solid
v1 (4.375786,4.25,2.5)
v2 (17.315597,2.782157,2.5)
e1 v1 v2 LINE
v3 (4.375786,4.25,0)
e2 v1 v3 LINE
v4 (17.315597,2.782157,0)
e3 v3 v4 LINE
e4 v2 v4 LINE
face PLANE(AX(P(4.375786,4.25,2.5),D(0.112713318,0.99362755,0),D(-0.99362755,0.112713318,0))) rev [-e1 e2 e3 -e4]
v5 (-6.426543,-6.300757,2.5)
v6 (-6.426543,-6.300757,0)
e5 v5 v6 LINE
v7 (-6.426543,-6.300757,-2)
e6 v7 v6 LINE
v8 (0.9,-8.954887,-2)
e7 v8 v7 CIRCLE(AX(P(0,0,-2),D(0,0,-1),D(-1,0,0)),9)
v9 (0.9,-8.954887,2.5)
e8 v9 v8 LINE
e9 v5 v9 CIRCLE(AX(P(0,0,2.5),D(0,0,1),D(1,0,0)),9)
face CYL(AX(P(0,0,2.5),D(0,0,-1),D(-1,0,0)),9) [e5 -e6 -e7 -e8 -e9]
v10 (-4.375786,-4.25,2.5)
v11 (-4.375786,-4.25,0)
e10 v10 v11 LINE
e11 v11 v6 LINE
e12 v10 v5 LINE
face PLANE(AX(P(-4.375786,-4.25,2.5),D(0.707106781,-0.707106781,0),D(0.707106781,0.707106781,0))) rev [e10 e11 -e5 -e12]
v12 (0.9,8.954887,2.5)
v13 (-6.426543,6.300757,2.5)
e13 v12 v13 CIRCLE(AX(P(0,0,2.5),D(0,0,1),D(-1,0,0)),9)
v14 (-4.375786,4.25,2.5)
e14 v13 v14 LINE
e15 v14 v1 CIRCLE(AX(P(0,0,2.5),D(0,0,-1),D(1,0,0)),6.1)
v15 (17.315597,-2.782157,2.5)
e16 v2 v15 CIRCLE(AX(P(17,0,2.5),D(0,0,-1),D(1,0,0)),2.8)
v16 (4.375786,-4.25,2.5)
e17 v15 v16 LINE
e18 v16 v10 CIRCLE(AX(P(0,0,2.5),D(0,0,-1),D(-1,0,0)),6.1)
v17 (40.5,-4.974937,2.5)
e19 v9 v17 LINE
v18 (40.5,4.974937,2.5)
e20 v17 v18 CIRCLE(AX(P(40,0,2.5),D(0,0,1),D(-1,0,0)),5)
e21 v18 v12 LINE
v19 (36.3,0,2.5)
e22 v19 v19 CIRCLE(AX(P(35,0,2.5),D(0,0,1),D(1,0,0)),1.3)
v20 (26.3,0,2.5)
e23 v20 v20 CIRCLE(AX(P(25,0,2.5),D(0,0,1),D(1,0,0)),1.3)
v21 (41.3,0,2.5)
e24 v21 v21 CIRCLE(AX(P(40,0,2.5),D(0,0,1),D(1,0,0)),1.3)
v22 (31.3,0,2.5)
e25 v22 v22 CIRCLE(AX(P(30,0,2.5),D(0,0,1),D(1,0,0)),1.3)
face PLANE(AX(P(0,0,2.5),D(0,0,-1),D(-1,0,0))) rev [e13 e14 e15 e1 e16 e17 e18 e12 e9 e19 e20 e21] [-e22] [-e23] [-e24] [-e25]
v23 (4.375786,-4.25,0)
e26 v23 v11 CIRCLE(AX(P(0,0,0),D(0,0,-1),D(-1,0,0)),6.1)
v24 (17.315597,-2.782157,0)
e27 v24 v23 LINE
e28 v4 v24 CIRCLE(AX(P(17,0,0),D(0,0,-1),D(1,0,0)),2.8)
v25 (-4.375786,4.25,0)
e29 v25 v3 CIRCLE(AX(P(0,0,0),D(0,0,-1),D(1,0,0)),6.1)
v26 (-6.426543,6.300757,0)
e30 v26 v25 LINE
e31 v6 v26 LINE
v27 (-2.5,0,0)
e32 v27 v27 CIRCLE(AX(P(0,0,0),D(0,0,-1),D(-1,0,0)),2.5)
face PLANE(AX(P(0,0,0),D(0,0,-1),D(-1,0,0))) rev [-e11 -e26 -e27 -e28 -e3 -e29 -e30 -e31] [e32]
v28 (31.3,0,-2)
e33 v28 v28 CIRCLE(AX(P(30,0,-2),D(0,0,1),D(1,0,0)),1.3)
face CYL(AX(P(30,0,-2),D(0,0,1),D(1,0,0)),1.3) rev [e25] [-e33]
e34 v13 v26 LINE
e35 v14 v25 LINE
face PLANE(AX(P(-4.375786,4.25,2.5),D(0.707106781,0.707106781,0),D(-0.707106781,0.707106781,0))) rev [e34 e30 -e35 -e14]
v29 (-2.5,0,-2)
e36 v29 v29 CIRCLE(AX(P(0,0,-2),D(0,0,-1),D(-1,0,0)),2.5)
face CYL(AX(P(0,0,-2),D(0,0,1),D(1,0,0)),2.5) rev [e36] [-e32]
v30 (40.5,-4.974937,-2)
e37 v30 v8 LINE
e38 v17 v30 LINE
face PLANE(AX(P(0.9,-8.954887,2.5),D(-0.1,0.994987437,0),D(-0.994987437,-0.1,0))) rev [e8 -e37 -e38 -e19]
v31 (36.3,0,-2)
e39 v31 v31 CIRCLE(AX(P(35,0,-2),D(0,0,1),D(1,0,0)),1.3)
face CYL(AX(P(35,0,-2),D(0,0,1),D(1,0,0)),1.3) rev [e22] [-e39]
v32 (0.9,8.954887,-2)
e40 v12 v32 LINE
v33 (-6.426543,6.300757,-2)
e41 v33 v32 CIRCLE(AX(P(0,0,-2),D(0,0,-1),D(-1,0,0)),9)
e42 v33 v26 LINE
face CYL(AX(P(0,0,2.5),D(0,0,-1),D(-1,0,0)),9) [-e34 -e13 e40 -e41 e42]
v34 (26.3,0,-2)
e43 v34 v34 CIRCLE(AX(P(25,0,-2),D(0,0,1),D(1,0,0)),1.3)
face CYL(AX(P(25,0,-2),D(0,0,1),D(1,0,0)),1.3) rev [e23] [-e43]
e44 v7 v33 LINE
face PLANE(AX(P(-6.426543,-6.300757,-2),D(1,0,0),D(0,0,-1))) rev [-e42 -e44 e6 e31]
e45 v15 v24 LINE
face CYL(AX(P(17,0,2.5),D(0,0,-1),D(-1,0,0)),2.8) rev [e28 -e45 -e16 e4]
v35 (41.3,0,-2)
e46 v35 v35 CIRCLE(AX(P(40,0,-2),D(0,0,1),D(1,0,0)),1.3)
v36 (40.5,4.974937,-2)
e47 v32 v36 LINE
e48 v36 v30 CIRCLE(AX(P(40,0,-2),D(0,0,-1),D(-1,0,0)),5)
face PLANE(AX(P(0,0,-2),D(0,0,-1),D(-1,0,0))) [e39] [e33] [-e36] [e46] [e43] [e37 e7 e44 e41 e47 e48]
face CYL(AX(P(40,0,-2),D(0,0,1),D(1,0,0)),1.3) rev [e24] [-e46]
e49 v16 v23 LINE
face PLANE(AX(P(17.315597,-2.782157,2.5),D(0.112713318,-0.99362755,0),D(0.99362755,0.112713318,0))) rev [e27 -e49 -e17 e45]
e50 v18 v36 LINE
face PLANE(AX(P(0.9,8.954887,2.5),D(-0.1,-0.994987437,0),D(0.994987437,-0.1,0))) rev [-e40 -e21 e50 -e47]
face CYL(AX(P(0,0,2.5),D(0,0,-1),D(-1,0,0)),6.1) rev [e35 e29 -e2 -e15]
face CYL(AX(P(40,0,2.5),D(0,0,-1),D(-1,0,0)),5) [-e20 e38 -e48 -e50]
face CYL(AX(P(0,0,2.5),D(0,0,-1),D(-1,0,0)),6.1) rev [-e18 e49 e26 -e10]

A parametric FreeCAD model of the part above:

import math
import FreeCAD as App
import Part
import Sketcher

V = App.Vector

doc = App.newDocument("Part")
body = doc.addObject("PartDesign::Body", "Body")

# Sketch on XY plane
sketch1 = body.newObject("Sketcher::SketchObject", "Sketch")
sketch1.AttachmentSupport = (doc.getObject("XY_Plane"), [""])
sketch1.MapMode = "FlatFace"
sketch1.addGeometry(Part.LineSegment(V(-6.4, 6.3, 0), V(-4.4, 4.2, 0)), False)
sketch1.addGeometry(Part.ArcOfCircle(Part.Circle(V(0, 0, 0), V(0, 0, 1), 6.1), math.radians(44), math.radians(136)), False)
sketch1.addGeometry(Part.LineSegment(V(4.4, 4.2, 0), V(17.3, 2.8, 0)), False)
sketch1.addGeometry(Part.ArcOfCircle(Part.Circle(V(17, 0, 0), V(0, 0, 1), 2.8), math.radians(-84), math.radians(84)), False)
sketch1.addGeometry(Part.LineSegment(V(17.3, -2.8, 0), V(4.4, -4.2, 0)), False)
sketch1.addGeometry(Part.ArcOfCircle(Part.Circle(V(0, 0, 0), V(0, 0, 1), 6.1), math.radians(-136), math.radians(-44)), False)
sketch1.addGeometry(Part.LineSegment(V(-4.4, -4.2, 0), V(-6.4, -6.3, 0)), False)
sketch1.addGeometry(Part.ArcOfCircle(Part.Circle(V(0, 0, 0), V(0, 0, 1), 9), math.radians(-136), math.radians(-84)), False)
sketch1.addGeometry(Part.LineSegment(V(0.9, -9, 0), V(40.5, -5, 0)), False)
sketch1.addGeometry(Part.ArcOfCircle(Part.Circle(V(40, 0, 0), V(0, 0, 1), 5), math.radians(-84), math.radians(84)), False)
sketch1.addGeometry(Part.LineSegment(V(40.5, 5, 0), V(0.9, 9, 0)), False)
sketch1.addGeometry(Part.ArcOfCircle(Part.Circle(V(0, 0, 0), V(0, 0, 1), 9), math.radians(84), math.radians(136)), False)
sketch1.addConstraint(Sketcher.Constraint("Coincident", 0, 2, 1, 2))
sketch1.addConstraint(Sketcher.Constraint("Coincident", 1, 1, 2, 1))
sketch1.addConstraint(Sketcher.Constraint("Tangent", 2, 2, 3, 2))
sketch1.addConstraint(Sketcher.Constraint("Tangent", 3, 1, 4, 1))
sketch1.addConstraint(Sketcher.Constraint("Coincident", 4, 2, 5, 2))
sketch1.addConstraint(Sketcher.Constraint("Coincident", 5, 1, 6, 1))
sketch1.addConstraint(Sketcher.Constraint("Coincident", 6, 2, 7, 1))
sketch1.addConstraint(Sketcher.Constraint("Tangent", 7, 2, 8, 1))
sketch1.addConstraint(Sketcher.Constraint("Tangent", 8, 2, 9, 1))
sketch1.addConstraint(Sketcher.Constraint("Tangent", 9, 2, 10, 1))
sketch1.addConstraint(Sketcher.Constraint("Tangent", 10, 2, 11, 1))
sketch1.addConstraint(Sketcher.Constraint("Coincident", 11, 2, 0, 1))
sketch1.addConstraint(Sketcher.Constraint("Coincident", 1, 3, -1, 1))
sketch1.addConstraint(Sketcher.Constraint("Coincident", 5, 3, -1, 1))
sketch1.addConstraint(Sketcher.Constraint("Coincident", 7, 3, -1, 1))
sketch1.addConstraint(Sketcher.Constraint("Coincident", 11, 3, -1, 1))
sketch1.addConstraint(Sketcher.Constraint("Equal", 1, 5))
sketch1.addConstraint(Sketcher.Constraint("Equal", 7, 11))
sketch1.addConstraint(Sketcher.Constraint("Symmetric", 2, 2, 3, 1, -1))
sketch1.addConstraint(Sketcher.Constraint("PointOnObject", 9, 3, -1))
sketch1.addConstraint(Sketcher.Constraint("Perpendicular", 0, 6))
sketch1.addConstraint(Sketcher.Constraint("Horizontal", 0, 2, 1, 1))
sketch1.addConstraint(Sketcher.Constraint("Horizontal", 4, 2, 5, 1))
sketch1.addConstraint(Sketcher.Constraint("Vertical", 6, 2, 11, 2))
sketch1.addConstraint(Sketcher.Constraint("Radius", 7, 9.0))
sketch1.addConstraint(Sketcher.Constraint("Radius", 9, 5.0))
sketch1.addConstraint(Sketcher.Constraint("Radius", 1, 6.1))
sketch1.addConstraint(Sketcher.Constraint("Radius", 3, 2.8))
sketch1.addConstraint(Sketcher.Constraint("DistanceX", -1, 1, 3, 3, 17.0))
sketch1.addConstraint(Sketcher.Constraint("DistanceX", -1, 1, 9, 3, 40.0))
sketch1.addConstraint(Sketcher.Constraint("DistanceY", 4, 2, 1, 1, 8.5))
pad1 = body.newObject("PartDesign::Pad", "Pad")
pad1.Profile = sketch1
pad1.Length = 2.5

# Sketch on XY plane
sketch2 = body.newObject("Sketcher::SketchObject", "Sketch001")
sketch2.AttachmentSupport = (doc.getObject("XY_Plane"), [""])
sketch2.MapMode = "FlatFace"
sketch2.addGeometry(Part.LineSegment(V(40.5, -5, 0), V(0.9, -9, 0)), False)
sketch2.addGeometry(Part.ArcOfCircle(Part.Circle(V(0, 0, 0), V(0, 0, 1), 9), math.radians(-136), math.radians(-84)), False)
sketch2.addGeometry(Part.LineSegment(V(-6.4, -6.3, 0), V(-6.4, 6.3, 0)), False)
sketch2.addGeometry(Part.ArcOfCircle(Part.Circle(V(0, 0, 0), V(0, 0, 1), 9), math.radians(84), math.radians(136)), False)
sketch2.addGeometry(Part.LineSegment(V(0.9, 9, 0), V(40.5, 5, 0)), False)
sketch2.addGeometry(Part.ArcOfCircle(Part.Circle(V(40, 0, 0), V(0, 0, 1), 5), math.radians(-84), math.radians(84)), False)
sketch2.addGeometry(Part.Circle(V(0, 0, 0), V(0, 0, 1), 2.5), False)
sketch2.addConstraint(Sketcher.Constraint("Tangent", 0, 2, 1, 2))
sketch2.addConstraint(Sketcher.Constraint("Coincident", 1, 1, 2, 1))
sketch2.addConstraint(Sketcher.Constraint("Coincident", 2, 2, 3, 2))
sketch2.addConstraint(Sketcher.Constraint("Tangent", 3, 1, 4, 1))
sketch2.addConstraint(Sketcher.Constraint("Tangent", 4, 2, 5, 2))
sketch2.addConstraint(Sketcher.Constraint("Tangent", 5, 1, 0, 1))
sketch2.addConstraint(Sketcher.Constraint("Vertical", 2))
sketch2.addConstraint(Sketcher.Constraint("Coincident", 1, 3, -1, 1))
sketch2.addConstraint(Sketcher.Constraint("Coincident", 3, 3, -1, 1))
sketch2.addConstraint(Sketcher.Constraint("Coincident", 6, 3, -1, 1))
sketch2.addConstraint(Sketcher.Constraint("Equal", 1, 3))
sketch2.addConstraint(Sketcher.Constraint("PointOnObject", 5, 3, -1))
sketch2.addConstraint(Sketcher.Constraint("Diameter", 6, 5.0))
sketch2.addConstraint(Sketcher.Constraint("Radius", 1, 9.0))
sketch2.addConstraint(Sketcher.Constraint("Radius", 5, 5.0))
sketch2.addConstraint(Sketcher.Constraint("DistanceX", -1, 1, 5, 3, 40.0))
sketch2.addConstraint(Sketcher.Constraint("DistanceY", 2, 1, 2, 2, 12.601515))
pad2 = body.newObject("PartDesign::Pad", "Pad001")
pad2.Profile = sketch2
pad2.Length = 2
pad2.Reversed = True

# Sketch on XY plane
sketch3 = body.newObject("Sketcher::SketchObject", "Sketch002")
sketch3.AttachmentSupport = (doc.getObject("XY_Plane"), [""])
sketch3.MapMode = "FlatFace"
sketch3.AttachmentOffset = App.Placement(V(0, 0, 2.5), App.Rotation())
sketch3.addGeometry(Part.Circle(V(40, 0, 0), V(0, 0, 1), 1.3), False)
sketch3.addConstraint(Sketcher.Constraint("PointOnObject", 0, 3, -1))
sketch3.addConstraint(Sketcher.Constraint("Diameter", 0, 2.6))
sketch3.addConstraint(Sketcher.Constraint("DistanceX", -1, 1, 0, 3, 40.0))
pocket1 = body.newObject("PartDesign::Pocket", "Pocket")
pocket1.Profile = sketch3
pocket1.Type = "ThroughAll"
doc.recompute()

linearpattern = body.newObject("PartDesign::LinearPattern", "LinearPattern")
linearpattern.Originals = [pocket1]
linearpattern.Direction = (doc.getObject("X_Axis"), [""])
linearpattern.Mode = "offset"
linearpattern.Offset = 5
linearpattern.Occurrences = 4
linearpattern.Reversed = True
body.Tip = linearpattern

doc.recompute()
